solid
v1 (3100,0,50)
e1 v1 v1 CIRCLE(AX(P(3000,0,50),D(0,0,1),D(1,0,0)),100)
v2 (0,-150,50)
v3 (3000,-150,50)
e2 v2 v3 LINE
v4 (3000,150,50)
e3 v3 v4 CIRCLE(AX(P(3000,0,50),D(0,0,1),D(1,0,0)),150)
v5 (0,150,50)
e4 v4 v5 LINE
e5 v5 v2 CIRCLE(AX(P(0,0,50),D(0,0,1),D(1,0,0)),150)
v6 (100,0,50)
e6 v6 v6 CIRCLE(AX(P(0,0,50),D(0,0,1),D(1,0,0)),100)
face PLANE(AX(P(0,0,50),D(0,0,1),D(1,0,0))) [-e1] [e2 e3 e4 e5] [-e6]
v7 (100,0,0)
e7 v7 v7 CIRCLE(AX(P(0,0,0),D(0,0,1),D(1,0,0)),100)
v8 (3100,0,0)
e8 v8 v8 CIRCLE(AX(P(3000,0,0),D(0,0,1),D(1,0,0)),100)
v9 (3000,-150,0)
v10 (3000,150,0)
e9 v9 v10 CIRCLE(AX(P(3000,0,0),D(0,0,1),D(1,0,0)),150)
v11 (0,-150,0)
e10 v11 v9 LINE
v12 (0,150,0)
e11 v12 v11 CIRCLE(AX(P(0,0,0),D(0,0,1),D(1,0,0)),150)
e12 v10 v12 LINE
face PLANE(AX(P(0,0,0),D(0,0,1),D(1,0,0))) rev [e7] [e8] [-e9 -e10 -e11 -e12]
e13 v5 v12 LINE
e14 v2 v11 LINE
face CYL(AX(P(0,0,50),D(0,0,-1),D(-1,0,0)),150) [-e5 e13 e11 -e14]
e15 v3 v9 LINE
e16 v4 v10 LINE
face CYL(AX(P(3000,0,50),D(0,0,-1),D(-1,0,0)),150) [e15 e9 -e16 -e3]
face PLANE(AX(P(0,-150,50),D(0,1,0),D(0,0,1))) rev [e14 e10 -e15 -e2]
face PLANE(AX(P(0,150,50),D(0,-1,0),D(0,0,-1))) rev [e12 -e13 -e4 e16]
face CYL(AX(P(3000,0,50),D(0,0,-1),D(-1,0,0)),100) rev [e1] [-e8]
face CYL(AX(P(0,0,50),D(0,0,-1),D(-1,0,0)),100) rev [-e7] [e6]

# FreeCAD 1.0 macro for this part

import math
import FreeCAD as App
import Part
import Sketcher
from FreeCAD import Vector

doc = App.newDocument("Part")
params = doc.addObject("Spreadsheet::Sheet", "Params")
for row, (alias, value) in enumerate([
    ("sketch1_diameter", "200 mm"),
    ("sketch1_radius", "150 mm"),
    ("sketch1_width", "3000 mm"),
    ("pad1_length", "50 mm"),
], start=1):
    params.set(f"A{row}", alias)
    params.set(f"B{row}", "=" + value)
    params.setAlias(f"B{row}", alias)

body = doc.addObject("PartDesign::Body", "Body")

# Sketch on XY plane
sketch1 = body.newObject("Sketcher::SketchObject", "Sketch")
sketch1.AttachmentSupport = (doc.getObject("XY_Plane"), [""])
sketch1.MapMode = "FlatFace"
sketch1.addGeometry([
    Part.LineSegment(Vector(3000, 150, 0), Vector(0, 150, 0)),  # 0
    Part.ArcOfCircle(Part.Circle(Vector(0, 0, 0), Vector(0, 0, 1), 150), math.radians(90), math.radians(270)),  # 1
    Part.LineSegment(Vector(0, -150, 0), Vector(3000, -150, 0)),  # 2
    Part.ArcOfCircle(Part.Circle(Vector(3000, 0, 0), Vector(0, 0, 1), 150), math.radians(-90), math.radians(90)),  # 3
    Part.Circle(Vector(3000, 0, 0), Vector(0, 0, 1), 100),  # 4
    Part.Circle(Vector(0, 0, 0), Vector(0, 0, 1), 100),  # 5
], False)
sketch1.addConstraint([
    Sketcher.Constraint("Tangent", 0, 2, 1, 1),
    Sketcher.Constraint("Tangent", 1, 2, 2, 1),
    Sketcher.Constraint("Tangent", 2, 2, 3, 1),
    Sketcher.Constraint("Tangent", 3, 2, 0, 1),
    Sketcher.Constraint("Horizontal", 0),
    Sketcher.Constraint("Horizontal", 2),
    Sketcher.Constraint("Coincident", 1, 3, -1, 1),
    Sketcher.Constraint("Coincident", 5, 3, -1, 1),
    Sketcher.Constraint("Coincident", 4, 3, 3, 3),
    Sketcher.Constraint("Equal", 4, 5),
    Sketcher.Constraint("Diameter", 4, 200.0),
    Sketcher.Constraint("Radius", 1, 150.0),
    Sketcher.Constraint("DistanceX", 0, 2, 0, 1, 3000.0),
])
sketch1.setExpression("Constraints[10]", "Params.sketch1_diameter")
sketch1.setExpression("Constraints[11]", "Params.sketch1_radius")
sketch1.setExpression("Constraints[12]", "Params.sketch1_width")
pad1 = body.newObject("PartDesign::Pad", "Pad")
pad1.Profile = sketch1
pad1.setExpression("Length", "Params.pad1_length")

doc.recompute()
